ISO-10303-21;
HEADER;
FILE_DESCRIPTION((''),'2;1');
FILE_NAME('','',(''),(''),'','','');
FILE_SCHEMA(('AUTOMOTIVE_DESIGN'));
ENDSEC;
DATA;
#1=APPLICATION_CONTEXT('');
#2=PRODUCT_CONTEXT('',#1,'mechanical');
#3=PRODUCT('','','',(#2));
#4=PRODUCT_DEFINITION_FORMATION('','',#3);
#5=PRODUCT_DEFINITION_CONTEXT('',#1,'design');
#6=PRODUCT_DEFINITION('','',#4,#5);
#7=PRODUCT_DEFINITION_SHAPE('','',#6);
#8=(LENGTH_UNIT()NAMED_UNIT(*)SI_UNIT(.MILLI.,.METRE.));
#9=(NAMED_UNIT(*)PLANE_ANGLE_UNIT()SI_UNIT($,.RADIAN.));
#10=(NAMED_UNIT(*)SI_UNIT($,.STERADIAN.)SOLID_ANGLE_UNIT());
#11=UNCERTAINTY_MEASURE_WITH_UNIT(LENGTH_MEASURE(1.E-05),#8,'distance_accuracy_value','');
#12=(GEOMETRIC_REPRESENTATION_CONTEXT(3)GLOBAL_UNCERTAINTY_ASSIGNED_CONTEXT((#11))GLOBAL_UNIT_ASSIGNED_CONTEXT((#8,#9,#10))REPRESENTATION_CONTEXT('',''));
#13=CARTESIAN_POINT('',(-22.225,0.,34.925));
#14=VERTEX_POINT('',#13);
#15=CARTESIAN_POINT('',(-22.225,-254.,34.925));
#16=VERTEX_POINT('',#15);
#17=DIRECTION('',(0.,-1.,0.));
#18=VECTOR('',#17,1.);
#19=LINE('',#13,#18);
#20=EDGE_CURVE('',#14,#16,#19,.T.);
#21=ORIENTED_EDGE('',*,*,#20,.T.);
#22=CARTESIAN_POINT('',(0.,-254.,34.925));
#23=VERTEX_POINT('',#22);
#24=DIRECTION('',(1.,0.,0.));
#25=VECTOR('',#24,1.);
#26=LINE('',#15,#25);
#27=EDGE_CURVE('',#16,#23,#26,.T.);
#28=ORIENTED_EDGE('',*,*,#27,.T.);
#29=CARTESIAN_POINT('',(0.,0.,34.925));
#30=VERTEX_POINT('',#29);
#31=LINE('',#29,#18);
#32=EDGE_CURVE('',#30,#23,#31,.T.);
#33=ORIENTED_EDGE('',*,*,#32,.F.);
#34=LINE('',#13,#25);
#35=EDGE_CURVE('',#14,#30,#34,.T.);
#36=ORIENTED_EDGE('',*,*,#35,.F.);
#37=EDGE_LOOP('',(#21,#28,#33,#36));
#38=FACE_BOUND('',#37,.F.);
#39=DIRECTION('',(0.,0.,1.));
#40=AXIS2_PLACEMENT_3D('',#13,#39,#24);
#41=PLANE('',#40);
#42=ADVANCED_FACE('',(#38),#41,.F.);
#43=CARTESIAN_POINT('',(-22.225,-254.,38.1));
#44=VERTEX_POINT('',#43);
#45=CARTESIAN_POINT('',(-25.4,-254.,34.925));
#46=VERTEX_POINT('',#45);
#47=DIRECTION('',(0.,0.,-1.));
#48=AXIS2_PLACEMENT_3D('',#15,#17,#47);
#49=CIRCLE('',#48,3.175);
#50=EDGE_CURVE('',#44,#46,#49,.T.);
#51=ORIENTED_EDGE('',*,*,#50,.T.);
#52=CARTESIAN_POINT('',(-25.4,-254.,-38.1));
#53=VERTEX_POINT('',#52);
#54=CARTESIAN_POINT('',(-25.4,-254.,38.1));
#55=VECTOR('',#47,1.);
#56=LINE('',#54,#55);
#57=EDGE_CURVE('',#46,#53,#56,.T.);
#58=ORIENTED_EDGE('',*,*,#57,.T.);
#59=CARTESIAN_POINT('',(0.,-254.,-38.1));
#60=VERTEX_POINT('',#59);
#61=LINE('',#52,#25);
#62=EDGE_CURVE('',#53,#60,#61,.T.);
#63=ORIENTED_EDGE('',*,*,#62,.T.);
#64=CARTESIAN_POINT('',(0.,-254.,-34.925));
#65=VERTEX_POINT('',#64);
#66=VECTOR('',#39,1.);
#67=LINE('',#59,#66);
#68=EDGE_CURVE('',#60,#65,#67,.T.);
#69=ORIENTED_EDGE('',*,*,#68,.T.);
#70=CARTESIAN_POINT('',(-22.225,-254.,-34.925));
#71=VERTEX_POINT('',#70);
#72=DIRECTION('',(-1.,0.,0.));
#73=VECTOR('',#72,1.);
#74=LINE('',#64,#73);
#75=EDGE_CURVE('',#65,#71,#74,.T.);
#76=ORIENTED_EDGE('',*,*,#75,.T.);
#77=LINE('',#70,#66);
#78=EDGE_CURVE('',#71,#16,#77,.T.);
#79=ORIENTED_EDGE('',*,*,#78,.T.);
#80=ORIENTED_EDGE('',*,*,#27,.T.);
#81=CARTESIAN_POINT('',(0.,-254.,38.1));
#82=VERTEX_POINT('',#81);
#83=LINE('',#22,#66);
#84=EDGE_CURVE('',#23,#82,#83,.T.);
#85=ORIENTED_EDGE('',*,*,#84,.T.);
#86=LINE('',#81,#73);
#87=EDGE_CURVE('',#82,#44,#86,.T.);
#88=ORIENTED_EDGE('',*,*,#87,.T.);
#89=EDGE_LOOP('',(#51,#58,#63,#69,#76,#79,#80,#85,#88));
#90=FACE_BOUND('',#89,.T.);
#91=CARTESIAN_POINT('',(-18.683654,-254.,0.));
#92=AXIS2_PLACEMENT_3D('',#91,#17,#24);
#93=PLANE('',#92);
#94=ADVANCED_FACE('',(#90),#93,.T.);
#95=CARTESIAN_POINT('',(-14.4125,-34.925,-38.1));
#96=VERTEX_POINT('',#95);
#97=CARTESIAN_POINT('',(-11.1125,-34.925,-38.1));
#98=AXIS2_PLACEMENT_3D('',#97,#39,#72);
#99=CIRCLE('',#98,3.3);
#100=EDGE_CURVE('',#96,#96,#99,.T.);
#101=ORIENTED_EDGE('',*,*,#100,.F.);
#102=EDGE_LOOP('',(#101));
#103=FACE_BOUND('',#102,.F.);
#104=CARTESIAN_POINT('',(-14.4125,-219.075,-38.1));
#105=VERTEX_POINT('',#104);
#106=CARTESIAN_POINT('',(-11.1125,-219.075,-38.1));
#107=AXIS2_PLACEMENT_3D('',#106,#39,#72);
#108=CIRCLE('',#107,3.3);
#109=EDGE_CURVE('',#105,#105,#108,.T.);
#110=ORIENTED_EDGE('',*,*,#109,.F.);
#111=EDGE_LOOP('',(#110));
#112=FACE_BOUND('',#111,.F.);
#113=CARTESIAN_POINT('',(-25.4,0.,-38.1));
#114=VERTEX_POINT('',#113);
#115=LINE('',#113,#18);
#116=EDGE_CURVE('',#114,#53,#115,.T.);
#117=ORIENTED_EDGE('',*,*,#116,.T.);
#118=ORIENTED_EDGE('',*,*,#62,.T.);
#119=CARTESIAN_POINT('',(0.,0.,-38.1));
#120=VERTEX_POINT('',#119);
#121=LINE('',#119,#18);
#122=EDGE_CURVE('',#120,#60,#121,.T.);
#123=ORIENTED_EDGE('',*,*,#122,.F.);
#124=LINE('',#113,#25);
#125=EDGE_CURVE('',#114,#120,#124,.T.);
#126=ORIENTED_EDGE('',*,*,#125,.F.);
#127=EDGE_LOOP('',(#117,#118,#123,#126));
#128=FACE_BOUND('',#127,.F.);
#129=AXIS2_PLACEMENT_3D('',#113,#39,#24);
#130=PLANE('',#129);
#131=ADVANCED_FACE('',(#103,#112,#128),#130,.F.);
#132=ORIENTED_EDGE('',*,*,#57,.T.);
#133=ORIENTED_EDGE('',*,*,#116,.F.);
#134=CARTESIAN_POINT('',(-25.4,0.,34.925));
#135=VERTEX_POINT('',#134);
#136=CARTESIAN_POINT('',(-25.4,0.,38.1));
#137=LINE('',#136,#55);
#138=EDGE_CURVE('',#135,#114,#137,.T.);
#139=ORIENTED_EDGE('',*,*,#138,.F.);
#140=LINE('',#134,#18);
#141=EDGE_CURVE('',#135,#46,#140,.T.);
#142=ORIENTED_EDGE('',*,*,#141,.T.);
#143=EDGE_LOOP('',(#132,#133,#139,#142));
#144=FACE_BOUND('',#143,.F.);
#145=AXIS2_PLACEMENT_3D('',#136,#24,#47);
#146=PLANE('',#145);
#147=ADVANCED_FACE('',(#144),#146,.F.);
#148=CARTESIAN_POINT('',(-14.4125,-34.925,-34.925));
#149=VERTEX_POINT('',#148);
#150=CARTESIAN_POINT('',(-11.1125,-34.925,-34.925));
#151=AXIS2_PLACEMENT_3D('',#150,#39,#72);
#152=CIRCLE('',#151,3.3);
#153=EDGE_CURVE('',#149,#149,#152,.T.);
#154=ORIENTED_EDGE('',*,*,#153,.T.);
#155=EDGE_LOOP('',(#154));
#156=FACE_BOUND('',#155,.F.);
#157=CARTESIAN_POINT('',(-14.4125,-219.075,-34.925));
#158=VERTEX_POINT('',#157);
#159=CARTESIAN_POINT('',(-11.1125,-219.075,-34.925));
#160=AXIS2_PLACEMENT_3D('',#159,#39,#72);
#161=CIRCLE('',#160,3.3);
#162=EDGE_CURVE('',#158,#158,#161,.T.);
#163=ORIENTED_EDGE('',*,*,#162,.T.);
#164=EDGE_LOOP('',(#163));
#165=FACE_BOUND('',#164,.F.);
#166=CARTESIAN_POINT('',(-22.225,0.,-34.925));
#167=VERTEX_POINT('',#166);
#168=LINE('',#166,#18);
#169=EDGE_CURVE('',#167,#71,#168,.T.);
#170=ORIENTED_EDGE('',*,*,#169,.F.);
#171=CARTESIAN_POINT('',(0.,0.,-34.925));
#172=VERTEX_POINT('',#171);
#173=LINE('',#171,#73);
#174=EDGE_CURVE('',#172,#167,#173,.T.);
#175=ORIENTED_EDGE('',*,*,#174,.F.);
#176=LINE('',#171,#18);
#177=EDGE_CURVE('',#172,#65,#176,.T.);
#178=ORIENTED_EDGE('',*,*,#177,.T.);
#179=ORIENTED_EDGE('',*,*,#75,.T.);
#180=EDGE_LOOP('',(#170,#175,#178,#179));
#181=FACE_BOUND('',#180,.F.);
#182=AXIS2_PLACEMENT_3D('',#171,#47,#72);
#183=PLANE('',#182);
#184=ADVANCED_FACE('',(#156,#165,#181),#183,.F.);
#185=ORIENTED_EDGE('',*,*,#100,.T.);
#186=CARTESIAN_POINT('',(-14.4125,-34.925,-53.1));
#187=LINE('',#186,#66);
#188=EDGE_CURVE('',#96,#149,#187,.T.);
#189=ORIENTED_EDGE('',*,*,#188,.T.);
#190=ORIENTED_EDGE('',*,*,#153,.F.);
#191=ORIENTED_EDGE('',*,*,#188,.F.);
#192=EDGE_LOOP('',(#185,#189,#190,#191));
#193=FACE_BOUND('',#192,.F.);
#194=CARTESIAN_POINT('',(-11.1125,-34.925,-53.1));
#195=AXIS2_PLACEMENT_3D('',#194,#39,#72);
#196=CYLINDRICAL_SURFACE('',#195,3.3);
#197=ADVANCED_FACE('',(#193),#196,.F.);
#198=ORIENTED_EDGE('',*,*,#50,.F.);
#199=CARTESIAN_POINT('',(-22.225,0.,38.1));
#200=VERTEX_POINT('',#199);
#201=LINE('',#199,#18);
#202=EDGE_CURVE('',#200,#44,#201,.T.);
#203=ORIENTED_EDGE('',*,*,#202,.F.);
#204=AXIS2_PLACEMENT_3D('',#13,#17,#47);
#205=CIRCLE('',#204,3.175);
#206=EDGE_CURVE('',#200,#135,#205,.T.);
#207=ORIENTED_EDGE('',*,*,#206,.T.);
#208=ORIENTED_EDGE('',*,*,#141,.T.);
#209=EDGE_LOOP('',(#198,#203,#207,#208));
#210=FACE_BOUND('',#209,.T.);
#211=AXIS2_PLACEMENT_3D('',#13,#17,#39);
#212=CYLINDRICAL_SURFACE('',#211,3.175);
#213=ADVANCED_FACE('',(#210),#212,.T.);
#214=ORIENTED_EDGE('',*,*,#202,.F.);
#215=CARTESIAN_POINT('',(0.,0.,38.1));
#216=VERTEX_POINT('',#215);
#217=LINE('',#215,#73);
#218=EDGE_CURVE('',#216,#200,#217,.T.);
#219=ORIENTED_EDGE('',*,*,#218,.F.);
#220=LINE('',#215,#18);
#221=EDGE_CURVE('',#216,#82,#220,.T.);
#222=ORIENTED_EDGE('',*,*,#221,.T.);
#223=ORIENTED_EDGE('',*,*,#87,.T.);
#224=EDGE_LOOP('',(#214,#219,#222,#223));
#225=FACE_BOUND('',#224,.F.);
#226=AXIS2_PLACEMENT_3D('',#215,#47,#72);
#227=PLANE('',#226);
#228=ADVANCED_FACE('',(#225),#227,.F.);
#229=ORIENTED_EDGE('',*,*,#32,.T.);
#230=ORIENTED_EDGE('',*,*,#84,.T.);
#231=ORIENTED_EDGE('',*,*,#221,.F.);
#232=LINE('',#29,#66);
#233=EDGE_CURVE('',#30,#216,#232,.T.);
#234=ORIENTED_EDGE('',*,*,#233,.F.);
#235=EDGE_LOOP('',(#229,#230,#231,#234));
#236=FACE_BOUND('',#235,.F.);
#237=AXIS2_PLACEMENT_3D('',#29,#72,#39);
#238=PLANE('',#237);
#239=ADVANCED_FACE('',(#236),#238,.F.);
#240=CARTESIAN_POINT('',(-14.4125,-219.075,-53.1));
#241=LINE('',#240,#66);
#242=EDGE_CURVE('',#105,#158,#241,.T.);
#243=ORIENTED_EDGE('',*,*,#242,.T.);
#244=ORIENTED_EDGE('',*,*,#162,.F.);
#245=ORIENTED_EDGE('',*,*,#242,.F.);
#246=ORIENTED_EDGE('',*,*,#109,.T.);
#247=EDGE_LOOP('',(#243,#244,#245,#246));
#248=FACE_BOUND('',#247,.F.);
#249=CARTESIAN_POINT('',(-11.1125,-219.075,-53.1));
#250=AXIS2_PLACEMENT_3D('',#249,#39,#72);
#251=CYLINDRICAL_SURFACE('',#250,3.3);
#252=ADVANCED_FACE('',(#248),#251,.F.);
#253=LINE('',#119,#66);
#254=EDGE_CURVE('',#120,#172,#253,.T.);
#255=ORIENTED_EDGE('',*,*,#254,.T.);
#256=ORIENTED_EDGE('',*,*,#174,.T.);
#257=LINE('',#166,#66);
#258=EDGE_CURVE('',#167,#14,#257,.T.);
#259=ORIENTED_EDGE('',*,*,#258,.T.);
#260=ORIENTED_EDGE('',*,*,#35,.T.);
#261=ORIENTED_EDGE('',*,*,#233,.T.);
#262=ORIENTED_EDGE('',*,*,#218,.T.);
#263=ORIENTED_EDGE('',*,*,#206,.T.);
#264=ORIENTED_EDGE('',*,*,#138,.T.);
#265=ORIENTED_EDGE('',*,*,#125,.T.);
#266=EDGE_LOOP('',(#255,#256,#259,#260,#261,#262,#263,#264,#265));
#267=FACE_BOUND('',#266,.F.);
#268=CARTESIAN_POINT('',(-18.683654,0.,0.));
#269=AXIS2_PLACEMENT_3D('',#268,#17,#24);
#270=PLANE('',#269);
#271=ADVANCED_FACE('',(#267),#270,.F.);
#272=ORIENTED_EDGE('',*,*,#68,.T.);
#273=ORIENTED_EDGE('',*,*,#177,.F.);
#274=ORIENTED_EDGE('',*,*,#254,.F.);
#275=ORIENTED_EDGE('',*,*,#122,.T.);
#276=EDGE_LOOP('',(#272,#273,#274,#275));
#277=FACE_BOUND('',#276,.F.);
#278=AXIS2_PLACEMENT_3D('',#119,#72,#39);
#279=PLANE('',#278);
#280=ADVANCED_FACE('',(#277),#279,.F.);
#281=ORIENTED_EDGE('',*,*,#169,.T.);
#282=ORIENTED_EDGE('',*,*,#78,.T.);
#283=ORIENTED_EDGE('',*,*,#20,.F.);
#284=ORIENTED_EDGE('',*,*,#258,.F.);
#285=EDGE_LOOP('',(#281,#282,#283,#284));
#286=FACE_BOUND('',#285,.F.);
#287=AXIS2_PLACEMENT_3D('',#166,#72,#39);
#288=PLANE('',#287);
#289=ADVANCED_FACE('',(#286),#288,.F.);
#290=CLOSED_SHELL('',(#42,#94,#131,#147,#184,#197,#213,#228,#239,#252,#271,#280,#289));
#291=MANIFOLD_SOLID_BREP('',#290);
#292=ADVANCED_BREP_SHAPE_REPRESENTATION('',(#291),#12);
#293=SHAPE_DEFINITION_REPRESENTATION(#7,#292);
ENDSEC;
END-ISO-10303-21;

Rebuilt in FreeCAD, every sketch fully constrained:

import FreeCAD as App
import Part
import Sketcher
Q = App.Units.Quantity


def edges_at(feature, points):
    """Names of the edges that pass closest to the given points."""
    edges = feature.Shape.Edges
    near = lambda p: min(range(len(edges)), key=lambda i: edges[i].distToShape(Part.Vertex(*p))[0])
    return sorted({f"Edge{near(p) + 1}" for p in points})

doc = App.newDocument("Part")
body = doc.addObject("PartDesign::Body", "Body")

# Sketch on XZ plane
sketch1 = body.newObject("Sketcher::SketchObject", "Sketch")
sketch1.AttachmentSupport = (doc.getObject("XZ_Plane"), [""])
sketch1.MapMode = "FlatFace"
sketch1.addGeometry(Part.LineSegment(App.Vector(0, 34.9, 0), App.Vector(0, 38.1, 0)), False)
sketch1.addGeometry(Part.LineSegment(App.Vector(0, 38.1, 0), App.Vector(-25.4, 38.1, 0)), False)
sketch1.addGeometry(Part.LineSegment(App.Vector(-25.4, 38.1, 0), App.Vector(-25.4, -38.1, 0)), False)
sketch1.addGeometry(Part.LineSegment(App.Vector(-25.4, -38.1, 0), App.Vector(0, -38.1, 0)), False)
sketch1.addGeometry(Part.LineSegment(App.Vector(0, -38.1, 0), App.Vector(0, -34.9, 0)), False)
sketch1.addGeometry(Part.LineSegment(App.Vector(0, -34.9, 0), App.Vector(-22.2, -34.9, 0)), False)
sketch1.addGeometry(Part.LineSegment(App.Vector(-22.2, -34.9, 0), App.Vector(-22.2, 34.9, 0)), False)
sketch1.addGeometry(Part.LineSegment(App.Vector(-22.2, 34.9, 0), App.Vector(0, 34.9, 0)), False)
sketch1.addConstraint(Sketcher.Constraint("Coincident", 0, 2, 1, 1))
sketch1.addConstraint(Sketcher.Constraint("Coincident", 1, 2, 2, 1))
sketch1.addConstraint(Sketcher.Constraint("Coincident", 2, 2, 3, 1))
sketch1.addConstraint(Sketcher.Constraint("Coincident", 3, 2, 4, 1))
sketch1.addConstraint(Sketcher.Constraint("Coincident", 4, 2, 5, 1))
sketch1.addConstraint(Sketcher.Constraint("Coincident", 5, 2, 6, 1))
sketch1.addConstraint(Sketcher.Constraint("Coincident", 6, 2, 7, 1))
sketch1.addConstraint(Sketcher.Constraint("Coincident", 7, 2, 0, 1))
sketch1.addConstraint(Sketcher.Constraint("Vertical", 0))
sketch1.addConstraint(Sketcher.Constraint("Horizontal", 1))
sketch1.addConstraint(Sketcher.Constraint("Vertical", 2))
sketch1.addConstraint(Sketcher.Constraint("Horizontal", 3))
sketch1.addConstraint(Sketcher.Constraint("Vertical", 4))
sketch1.addConstraint(Sketcher.Constraint("Horizontal", 5))
sketch1.addConstraint(Sketcher.Constraint("Vertical", 6))
sketch1.addConstraint(Sketcher.Constraint("Horizontal", 7))
sketch1.addConstraint(Sketcher.Constraint("Symmetric", 0, 2, 3, 2, -1, 1))
sketch1.addConstraint(Sketcher.Constraint("Symmetric", 4, 2, 7, 2, -1))
sketch1.addConstraint(Sketcher.Constraint("DistanceX", 1, 2, 1, 1, Q("1 in")))
sketch1.addConstraint(Sketcher.Constraint("DistanceY", 2, 2, 2, 1, Q("3 in")))
sketch1.addConstraint(Sketcher.Constraint("DistanceY", 6, 1, 6, 2, Q("2.75 in")))
sketch1.addConstraint(Sketcher.Constraint("DistanceX", 5, 2, 5, 1, Q("0.875 in")))
pad1 = body.newObject("PartDesign::Pad", "Pad")
pad1.Profile = sketch1
pad1.Length = Q("10 in")

# Sketch on XY plane
sketch2 = body.newObject("Sketcher::SketchObject", "Sketch001")
sketch2.AttachmentSupport = (doc.getObject("XY_Plane"), [""])
sketch2.MapMode = "FlatFace"
sketch2.AttachmentOffset = App.Placement(App.Vector(0, 0, -1.5 * 25.4), App.Rotation())
sketch2.addGeometry(Part.Circle(App.Vector(-11.1, -219.1, 0), App.Vector(0, 0, 1), 3.3), False)
sketch2.addGeometry(Part.Circle(App.Vector(-11.1, -34.9, 0), App.Vector(0, 0, 1), 3.3), False)
sketch2.addConstraint(Sketcher.Constraint("Equal", 0, 1))
sketch2.addConstraint(Sketcher.Constraint("Vertical", 0, 3, 1, 3))
sketch2.addConstraint(Sketcher.Constraint("Diameter", 0, Q("6.6 mm")))
sketch2.addConstraint(Sketcher.Constraint("DistanceY", 0, 3, 1, 3, Q("7.25 in")))
sketch2.addConstraint(Sketcher.Constraint("DistanceX", 0, 3, -1, 1, Q("0.4375 in")))
sketch2.addConstraint(Sketcher.Constraint("DistanceY", 0, 3, -1, 1, Q("8.625 in")))
doc.recompute()
hole = body.newObject("PartDesign::Hole", "Hole")
hole.Profile = sketch2
hole.ThreadType = "None"
hole.Diameter = 6.6
hole.DepthType = "Dimension"
hole.Depth = 15
hole.DrillPoint = "Angled"
hole.DrillPointAngle = 118
hole.Reversed = True
doc.recompute()

fillet = body.newObject("PartDesign::Fillet", "Fillet")
fillet.Base = (hole, edges_at(hole, [(-25.4, -127, 38.1)]))
fillet.Radius = Q("0.125 in")

doc.recompute()
